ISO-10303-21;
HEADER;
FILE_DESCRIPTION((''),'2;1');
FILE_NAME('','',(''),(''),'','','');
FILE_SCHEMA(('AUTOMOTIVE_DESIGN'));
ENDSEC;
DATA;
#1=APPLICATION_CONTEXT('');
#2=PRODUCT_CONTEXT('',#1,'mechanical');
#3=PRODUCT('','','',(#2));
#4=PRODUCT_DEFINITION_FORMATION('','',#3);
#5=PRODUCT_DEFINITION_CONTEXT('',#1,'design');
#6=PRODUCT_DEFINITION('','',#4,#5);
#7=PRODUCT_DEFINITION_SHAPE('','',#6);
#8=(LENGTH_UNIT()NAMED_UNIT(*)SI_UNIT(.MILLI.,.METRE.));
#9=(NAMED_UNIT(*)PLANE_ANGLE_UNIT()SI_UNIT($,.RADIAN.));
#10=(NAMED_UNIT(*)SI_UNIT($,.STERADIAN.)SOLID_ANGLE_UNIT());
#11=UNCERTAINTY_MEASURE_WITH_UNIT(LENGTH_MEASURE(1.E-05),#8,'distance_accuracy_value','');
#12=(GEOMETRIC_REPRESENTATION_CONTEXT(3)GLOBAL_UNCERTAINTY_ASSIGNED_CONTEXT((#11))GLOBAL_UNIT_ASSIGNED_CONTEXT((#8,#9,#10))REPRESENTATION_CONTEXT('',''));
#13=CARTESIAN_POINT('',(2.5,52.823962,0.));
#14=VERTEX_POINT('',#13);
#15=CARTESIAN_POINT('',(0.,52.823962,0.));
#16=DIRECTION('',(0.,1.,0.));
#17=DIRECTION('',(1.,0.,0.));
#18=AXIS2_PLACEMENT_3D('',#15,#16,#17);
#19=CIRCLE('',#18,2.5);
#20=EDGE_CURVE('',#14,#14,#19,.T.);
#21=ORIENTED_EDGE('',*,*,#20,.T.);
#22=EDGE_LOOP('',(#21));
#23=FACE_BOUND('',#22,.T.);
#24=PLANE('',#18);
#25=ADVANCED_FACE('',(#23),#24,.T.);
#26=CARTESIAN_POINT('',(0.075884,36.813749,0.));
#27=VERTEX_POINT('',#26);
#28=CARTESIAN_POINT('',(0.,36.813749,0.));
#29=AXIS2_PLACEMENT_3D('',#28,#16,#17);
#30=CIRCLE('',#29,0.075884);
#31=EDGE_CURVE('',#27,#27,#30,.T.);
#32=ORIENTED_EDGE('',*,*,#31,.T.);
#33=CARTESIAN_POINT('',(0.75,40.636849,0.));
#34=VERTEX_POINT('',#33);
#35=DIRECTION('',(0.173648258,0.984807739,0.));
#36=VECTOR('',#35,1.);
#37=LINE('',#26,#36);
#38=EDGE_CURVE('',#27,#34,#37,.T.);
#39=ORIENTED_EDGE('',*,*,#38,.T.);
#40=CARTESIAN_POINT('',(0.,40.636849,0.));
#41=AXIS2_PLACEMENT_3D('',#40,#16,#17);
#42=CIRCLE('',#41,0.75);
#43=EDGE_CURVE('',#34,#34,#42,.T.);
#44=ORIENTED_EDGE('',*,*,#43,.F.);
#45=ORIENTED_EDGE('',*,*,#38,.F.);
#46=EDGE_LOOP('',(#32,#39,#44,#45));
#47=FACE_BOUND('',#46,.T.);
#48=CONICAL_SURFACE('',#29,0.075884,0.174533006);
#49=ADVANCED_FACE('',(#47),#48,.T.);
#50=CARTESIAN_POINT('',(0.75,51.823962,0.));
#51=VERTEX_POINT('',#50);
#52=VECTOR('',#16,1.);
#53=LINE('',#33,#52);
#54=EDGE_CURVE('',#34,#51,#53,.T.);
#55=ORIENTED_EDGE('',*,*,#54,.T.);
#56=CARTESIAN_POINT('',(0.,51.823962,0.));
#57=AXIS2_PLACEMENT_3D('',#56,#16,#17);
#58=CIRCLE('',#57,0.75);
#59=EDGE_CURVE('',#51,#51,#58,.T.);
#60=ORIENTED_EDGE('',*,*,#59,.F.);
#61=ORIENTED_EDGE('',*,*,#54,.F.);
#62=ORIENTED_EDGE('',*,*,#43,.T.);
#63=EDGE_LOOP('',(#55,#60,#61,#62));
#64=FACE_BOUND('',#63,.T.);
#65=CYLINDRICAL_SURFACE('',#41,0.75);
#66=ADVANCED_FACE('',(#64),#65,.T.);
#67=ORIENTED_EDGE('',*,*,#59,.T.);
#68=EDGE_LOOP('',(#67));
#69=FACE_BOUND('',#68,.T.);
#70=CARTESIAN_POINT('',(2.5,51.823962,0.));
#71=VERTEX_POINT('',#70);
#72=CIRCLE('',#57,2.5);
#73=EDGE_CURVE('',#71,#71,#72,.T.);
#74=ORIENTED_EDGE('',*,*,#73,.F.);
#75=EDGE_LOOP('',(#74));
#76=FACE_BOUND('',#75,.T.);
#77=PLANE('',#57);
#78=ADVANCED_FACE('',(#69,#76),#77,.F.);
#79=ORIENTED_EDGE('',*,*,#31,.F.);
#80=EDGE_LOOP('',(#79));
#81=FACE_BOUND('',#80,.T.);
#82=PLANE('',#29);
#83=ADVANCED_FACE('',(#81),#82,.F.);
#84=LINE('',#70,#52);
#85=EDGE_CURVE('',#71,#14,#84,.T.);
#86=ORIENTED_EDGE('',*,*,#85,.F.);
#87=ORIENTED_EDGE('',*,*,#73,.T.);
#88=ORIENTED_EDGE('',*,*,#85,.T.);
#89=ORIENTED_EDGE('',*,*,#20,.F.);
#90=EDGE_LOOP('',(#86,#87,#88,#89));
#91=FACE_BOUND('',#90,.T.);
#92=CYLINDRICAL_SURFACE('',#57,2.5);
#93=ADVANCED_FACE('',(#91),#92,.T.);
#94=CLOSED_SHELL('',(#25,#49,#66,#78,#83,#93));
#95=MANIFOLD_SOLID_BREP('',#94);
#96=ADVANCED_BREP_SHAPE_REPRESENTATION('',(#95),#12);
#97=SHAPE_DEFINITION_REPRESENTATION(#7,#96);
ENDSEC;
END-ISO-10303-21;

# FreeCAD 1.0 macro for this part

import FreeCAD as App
import Part
import Sketcher
Q = App.Units.Quantity

doc = App.newDocument("Part")
body = doc.addObject("PartDesign::Body", "Body")

# Sketch on XY plane
sketch1 = body.newObject("Sketcher::SketchObject", "Sketch")
sketch1.AttachmentSupport = (doc.getObject("XY_Plane"), [""])
sketch1.MapMode = "FlatFace"
sketch1.addGeometry(Part.LineSegment(App.Vector(0, 36.813749, 0), App.Vector(0.075884, 36.813749, 0)), False)
sketch1.addGeometry(Part.LineSegment(App.Vector(0.075884, 36.813749, 0), App.Vector(0.75, 40.636849, 0)), False)
sketch1.addGeometry(Part.LineSegment(App.Vector(0.75, 40.636849, 0), App.Vector(0.75, 51.823962, 0)), False)
sketch1.addGeometry(Part.LineSegment(App.Vector(0.75, 51.823962, 0), App.Vector(2.5, 51.823962, 0)), False)
sketch1.addGeometry(Part.LineSegment(App.Vector(2.5, 51.823962, 0), App.Vector(2.5, 52.823962, 0)), False)
sketch1.addGeometry(Part.LineSegment(App.Vector(2.5, 52.823962, 0), App.Vector(0, 52.823962, 0)), False)
sketch1.addGeometry(Part.LineSegment(App.Vector(0, 52.823962, 0), App.Vector(0, 36.813749, 0)), False)
sketch1.addConstraint(Sketcher.Constraint("Coincident", 0, 2, 1, 1))
sketch1.addConstraint(Sketcher.Constraint("Coincident", 1, 2, 2, 1))
sketch1.addConstraint(Sketcher.Constraint("Coincident", 2, 2, 3, 1))
sketch1.addConstraint(Sketcher.Constraint("Coincident", 3, 2, 4, 1))
sketch1.addConstraint(Sketcher.Constraint("Coincident", 4, 2, 5, 1))
sketch1.addConstraint(Sketcher.Constraint("Coincident", 5, 2, 6, 1))
sketch1.addConstraint(Sketcher.Constraint("Coincident", 6, 2, 0, 1))
sketch1.addConstraint(Sketcher.Constraint("Horizontal", 0))
sketch1.addConstraint(Sketcher.Constraint("Vertical", 2))
sketch1.addConstraint(Sketcher.Constraint("Horizontal", 3))
sketch1.addConstraint(Sketcher.Constraint("Vertical", 4))
sketch1.addConstraint(Sketcher.Constraint("Horizontal", 5))
sketch1.addConstraint(Sketcher.Constraint("Vertical", 6))
sketch1.addConstraint(Sketcher.Constraint("PointOnObject", 5, 2, -2))
sketch1.addConstraint(Sketcher.Constraint("DistanceY", 4, 1, 4, 2, 1.0))
sketch1.addConstraint(Sketcher.Constraint("Angle", 1, Q("79.999995 deg")))
sketch1.addConstraint(Sketcher.Constraint("DistanceX", 5, 2, 5, 1, 2.5))
sketch1.addConstraint(Sketcher.Constraint("DistanceX", 3, 1, 3, 2, 1.75))
sketch1.addConstraint(Sketcher.Constraint("DistanceY", 0, 2, 1, 2, 3.8231))
sketch1.addConstraint(Sketcher.Constraint("DistanceY", 2, 1, 2, 2, 11.187113))
sketch1.addConstraint(Sketcher.Constraint("DistanceY", -1, 1, 0, 2, 36.813749))
revolution = body.newObject("PartDesign::Revolution", "Revolution")
revolution.Profile = sketch1
revolution.ReferenceAxis = (sketch1, ["V_Axis"])
revolution.Angle = 360

doc.recompute()
